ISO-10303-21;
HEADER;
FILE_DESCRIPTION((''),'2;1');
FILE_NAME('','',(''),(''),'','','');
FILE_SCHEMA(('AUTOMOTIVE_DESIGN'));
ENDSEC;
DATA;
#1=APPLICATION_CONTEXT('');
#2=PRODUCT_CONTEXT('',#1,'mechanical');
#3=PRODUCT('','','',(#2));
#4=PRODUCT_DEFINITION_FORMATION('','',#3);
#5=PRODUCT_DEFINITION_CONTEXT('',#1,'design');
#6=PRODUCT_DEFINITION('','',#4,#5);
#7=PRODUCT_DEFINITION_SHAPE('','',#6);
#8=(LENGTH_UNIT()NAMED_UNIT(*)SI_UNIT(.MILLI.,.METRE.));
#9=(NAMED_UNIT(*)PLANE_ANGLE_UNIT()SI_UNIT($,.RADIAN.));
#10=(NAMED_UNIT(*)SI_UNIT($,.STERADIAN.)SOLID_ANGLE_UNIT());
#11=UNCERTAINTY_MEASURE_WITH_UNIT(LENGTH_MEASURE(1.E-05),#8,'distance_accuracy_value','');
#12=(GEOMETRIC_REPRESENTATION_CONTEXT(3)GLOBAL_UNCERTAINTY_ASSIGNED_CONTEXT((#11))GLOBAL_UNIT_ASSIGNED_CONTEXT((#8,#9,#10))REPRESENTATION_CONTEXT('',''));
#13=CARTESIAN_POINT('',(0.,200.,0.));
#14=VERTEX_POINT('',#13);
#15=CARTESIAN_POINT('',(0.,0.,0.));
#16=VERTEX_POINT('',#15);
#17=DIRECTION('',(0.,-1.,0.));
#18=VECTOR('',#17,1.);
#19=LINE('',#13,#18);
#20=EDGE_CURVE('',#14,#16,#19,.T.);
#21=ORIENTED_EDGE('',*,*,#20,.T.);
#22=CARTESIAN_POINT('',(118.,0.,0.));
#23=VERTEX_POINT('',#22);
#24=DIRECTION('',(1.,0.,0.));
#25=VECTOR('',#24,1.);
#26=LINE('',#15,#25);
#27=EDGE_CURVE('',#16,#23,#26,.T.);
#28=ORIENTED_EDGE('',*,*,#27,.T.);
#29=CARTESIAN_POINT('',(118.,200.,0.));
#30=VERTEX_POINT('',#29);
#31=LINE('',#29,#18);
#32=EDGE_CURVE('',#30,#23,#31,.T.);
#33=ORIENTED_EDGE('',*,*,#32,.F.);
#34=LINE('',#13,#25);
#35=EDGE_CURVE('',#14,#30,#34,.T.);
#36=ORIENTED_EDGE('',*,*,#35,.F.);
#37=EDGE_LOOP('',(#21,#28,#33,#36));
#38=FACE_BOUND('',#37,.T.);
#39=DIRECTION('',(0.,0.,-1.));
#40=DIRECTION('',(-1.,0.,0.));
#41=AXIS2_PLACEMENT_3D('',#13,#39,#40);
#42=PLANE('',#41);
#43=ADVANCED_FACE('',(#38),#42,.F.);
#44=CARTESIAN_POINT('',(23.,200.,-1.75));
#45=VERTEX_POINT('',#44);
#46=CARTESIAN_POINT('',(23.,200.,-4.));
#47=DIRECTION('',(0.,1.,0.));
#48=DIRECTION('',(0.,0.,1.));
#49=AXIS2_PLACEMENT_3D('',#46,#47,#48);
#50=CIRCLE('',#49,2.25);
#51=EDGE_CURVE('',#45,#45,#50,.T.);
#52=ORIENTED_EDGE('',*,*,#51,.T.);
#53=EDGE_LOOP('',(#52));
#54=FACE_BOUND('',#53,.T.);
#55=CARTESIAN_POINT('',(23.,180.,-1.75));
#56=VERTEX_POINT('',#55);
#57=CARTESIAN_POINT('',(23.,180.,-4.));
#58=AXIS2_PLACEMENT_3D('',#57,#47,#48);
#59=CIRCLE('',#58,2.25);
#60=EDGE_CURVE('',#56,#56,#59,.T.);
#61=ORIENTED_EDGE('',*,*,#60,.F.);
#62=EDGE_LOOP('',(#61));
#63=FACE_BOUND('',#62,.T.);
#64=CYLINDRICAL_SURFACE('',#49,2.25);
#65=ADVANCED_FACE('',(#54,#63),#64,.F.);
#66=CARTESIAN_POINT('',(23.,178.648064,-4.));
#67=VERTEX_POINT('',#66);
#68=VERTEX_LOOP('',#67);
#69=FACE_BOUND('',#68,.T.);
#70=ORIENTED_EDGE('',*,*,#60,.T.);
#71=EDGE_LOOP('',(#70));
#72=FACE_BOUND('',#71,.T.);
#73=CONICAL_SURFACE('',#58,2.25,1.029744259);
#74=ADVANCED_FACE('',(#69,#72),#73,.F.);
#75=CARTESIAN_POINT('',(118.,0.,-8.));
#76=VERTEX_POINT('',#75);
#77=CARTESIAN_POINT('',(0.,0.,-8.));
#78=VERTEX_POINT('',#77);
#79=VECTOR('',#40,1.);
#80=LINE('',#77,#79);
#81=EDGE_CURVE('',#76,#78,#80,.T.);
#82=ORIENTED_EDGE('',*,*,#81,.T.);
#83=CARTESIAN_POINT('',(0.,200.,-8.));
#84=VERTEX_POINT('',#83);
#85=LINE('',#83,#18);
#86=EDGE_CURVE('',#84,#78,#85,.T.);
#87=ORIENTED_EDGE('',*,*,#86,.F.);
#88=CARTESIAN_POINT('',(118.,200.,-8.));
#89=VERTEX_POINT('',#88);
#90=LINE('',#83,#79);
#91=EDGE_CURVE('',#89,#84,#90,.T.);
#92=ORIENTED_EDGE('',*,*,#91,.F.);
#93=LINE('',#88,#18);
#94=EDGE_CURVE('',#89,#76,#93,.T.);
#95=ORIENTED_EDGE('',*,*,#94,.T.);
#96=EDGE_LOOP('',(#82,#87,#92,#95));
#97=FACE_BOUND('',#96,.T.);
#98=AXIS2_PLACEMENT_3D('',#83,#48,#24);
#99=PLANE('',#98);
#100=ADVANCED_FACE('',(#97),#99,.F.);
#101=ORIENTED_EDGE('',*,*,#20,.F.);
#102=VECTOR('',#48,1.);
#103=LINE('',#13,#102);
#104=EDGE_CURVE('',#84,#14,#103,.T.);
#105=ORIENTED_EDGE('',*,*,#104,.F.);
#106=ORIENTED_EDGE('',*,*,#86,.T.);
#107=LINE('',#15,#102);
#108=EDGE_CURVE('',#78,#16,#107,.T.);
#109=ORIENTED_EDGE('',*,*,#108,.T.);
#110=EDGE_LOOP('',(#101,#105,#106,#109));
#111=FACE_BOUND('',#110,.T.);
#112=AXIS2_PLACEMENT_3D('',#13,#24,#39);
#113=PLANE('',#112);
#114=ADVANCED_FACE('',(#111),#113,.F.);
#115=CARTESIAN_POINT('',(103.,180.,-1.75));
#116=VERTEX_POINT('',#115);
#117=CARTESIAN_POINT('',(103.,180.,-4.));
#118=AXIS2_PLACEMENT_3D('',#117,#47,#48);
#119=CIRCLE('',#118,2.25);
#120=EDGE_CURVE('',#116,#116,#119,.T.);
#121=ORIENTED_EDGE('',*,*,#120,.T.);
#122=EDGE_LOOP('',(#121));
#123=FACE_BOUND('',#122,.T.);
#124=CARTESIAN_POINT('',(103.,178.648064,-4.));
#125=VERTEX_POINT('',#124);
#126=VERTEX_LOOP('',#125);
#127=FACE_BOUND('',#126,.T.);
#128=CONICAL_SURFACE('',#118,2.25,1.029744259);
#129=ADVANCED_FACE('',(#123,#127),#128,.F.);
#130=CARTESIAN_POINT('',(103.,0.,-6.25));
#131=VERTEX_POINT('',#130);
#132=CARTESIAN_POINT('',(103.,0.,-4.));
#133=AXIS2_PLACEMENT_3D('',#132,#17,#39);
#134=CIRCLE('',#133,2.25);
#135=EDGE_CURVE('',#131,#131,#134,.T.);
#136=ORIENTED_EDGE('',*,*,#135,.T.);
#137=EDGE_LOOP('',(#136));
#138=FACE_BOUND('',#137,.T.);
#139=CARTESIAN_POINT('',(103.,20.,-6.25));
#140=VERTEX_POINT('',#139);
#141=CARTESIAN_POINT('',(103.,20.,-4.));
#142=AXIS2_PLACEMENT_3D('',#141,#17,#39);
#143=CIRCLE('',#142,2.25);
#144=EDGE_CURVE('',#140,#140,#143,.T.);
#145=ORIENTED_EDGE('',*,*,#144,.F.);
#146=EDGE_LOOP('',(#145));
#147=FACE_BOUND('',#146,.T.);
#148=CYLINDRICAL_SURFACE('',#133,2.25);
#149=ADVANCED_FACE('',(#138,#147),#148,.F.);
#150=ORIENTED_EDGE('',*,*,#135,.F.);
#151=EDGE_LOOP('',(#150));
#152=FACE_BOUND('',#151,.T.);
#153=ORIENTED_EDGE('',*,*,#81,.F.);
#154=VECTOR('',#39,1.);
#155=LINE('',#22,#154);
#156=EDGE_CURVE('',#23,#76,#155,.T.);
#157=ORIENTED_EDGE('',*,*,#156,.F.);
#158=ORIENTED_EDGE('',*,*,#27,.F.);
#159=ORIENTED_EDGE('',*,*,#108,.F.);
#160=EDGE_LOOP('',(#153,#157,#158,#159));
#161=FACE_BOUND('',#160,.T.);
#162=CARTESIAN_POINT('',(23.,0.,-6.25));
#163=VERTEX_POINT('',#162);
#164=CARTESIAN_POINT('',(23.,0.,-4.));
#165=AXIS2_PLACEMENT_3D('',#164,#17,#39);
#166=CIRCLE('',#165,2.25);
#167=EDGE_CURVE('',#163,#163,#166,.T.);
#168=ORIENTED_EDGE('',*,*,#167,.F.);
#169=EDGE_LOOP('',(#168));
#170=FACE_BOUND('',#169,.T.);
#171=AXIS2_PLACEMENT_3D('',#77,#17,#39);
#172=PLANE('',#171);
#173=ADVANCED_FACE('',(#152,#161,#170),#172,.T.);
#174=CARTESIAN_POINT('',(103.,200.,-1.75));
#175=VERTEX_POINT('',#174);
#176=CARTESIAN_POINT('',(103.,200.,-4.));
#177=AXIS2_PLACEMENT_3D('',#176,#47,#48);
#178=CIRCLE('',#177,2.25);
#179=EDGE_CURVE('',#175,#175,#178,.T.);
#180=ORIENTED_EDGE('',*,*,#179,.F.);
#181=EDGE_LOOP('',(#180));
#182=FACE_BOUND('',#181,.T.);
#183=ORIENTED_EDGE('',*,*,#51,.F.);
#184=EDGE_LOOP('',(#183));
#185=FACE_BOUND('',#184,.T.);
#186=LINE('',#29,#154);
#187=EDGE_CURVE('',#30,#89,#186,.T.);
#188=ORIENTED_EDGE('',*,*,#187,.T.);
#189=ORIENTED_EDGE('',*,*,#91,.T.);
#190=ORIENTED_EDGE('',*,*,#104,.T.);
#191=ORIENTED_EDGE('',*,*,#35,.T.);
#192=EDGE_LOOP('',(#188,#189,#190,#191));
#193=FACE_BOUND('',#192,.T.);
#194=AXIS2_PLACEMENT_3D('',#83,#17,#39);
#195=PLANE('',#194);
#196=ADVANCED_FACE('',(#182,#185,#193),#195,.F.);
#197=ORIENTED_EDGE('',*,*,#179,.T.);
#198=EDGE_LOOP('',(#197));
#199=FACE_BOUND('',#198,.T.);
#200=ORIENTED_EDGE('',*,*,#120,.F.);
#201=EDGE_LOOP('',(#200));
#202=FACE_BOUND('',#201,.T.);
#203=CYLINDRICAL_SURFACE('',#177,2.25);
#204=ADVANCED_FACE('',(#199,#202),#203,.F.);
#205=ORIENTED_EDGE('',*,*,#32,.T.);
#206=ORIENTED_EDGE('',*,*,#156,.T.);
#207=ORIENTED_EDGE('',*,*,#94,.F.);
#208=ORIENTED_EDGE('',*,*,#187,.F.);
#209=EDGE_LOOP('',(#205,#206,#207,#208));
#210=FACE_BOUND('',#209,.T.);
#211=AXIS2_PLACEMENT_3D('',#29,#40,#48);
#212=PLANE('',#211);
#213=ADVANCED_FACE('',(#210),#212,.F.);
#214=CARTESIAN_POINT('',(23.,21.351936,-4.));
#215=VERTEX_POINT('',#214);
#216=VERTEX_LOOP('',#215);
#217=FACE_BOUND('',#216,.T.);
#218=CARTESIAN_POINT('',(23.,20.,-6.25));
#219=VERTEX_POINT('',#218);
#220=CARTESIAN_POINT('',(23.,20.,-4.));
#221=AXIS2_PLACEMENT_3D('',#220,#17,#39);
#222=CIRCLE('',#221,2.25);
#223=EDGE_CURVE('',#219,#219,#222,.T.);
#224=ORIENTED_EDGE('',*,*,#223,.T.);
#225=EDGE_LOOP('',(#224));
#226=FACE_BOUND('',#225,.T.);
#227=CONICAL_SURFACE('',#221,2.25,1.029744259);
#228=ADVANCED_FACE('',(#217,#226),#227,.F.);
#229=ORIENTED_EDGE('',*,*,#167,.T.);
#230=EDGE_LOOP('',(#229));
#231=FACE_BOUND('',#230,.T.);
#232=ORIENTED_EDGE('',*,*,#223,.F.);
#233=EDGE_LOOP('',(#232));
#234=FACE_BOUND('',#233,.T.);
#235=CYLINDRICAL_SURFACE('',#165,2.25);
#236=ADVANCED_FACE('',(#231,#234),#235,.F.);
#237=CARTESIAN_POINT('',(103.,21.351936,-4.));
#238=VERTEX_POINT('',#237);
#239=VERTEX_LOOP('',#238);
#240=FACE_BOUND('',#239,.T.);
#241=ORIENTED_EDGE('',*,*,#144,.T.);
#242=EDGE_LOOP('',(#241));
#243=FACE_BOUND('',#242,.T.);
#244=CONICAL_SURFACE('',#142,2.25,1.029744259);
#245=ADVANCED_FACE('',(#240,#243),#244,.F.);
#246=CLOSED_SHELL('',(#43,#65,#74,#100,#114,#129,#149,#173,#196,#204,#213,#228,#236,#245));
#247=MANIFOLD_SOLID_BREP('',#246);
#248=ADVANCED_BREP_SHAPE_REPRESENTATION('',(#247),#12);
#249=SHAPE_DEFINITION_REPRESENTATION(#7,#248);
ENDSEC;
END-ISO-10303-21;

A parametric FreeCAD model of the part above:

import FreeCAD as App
import Part
import Sketcher
from FreeCAD import Vector
Q = App.Units.Quantity

doc = App.newDocument("Part")
body = doc.addObject("PartDesign::Body", "Body")

# Sketch on XZ plane
sketch1 = body.newObject("Sketcher::SketchObject", "Sketch")
sketch1.AttachmentSupport = (doc.getObject("XZ_Plane"), [""])
sketch1.MapMode = "FlatFace"
sketch1.addGeometry([
    Part.LineSegment(Vector(0, -8, 0), Vector(0, 0, 0)),
    Part.LineSegment(Vector(0, 0, 0), Vector(118, 0, 0)),
    Part.LineSegment(Vector(118, 0, 0), Vector(118, -8, 0)),
    Part.LineSegment(Vector(118, -8, 0), Vector(0, -8, 0)),
], False)
sketch1.addConstraint([
    Sketcher.Constraint("Coincident", 0, 2, 1, 1),
    Sketcher.Constraint("Coincident", 1, 2, 2, 1),
    Sketcher.Constraint("Coincident", 2, 2, 3, 1),
    Sketcher.Constraint("Coincident", 3, 2, 0, 1),
    Sketcher.Constraint("Vertical", 0),
    Sketcher.Constraint("Horizontal", 1),
    Sketcher.Constraint("Vertical", 2),
    Sketcher.Constraint("Horizontal", 3),
    Sketcher.Constraint("Coincident", 0, 2, -1, 1),
    Sketcher.Constraint("DistanceX", 1, 1, 1, 2, Q("118 mm")),
    Sketcher.Constraint("DistanceY", 0, 1, 0, 2, Q("8 mm")),
])
pad1 = body.newObject("PartDesign::Pad", "Pad")
pad1.Profile = sketch1
pad1.Length = 200
pad1.Reversed = True

# Sketch on XZ plane
sketch2 = body.newObject("Sketcher::SketchObject", "Sketch001")
sketch2.AttachmentSupport = (doc.getObject("XZ_Plane"), [""])
sketch2.MapMode = "FlatFace"
sketch2.AttachmentOffset = App.Placement(Vector(0, 0, -200), App.Rotation())
sketch2.addGeometry([
    Part.Circle(Vector(23, -4, 0), Vector(0, 0, 1), 2.2),
    Part.Circle(Vector(103, -4, 0), Vector(0, 0, 1), 2.2),
], False)
sketch2.addConstraint([
    Sketcher.Constraint("Equal", 0, 1),
    Sketcher.Constraint("Horizontal", 0, 3, 1, 3),
    Sketcher.Constraint("Diameter", 0, Q("4.5 mm")),
    Sketcher.Constraint("DistanceX", -1, 1, 0, 3, Q("23 mm")),
    Sketcher.Constraint("DistanceY", 0, 3, -1, 1, Q("4 mm")),
    Sketcher.Constraint("DistanceX", -1, 1, 1, 3, Q("103 mm")),
])
doc.recompute()
hole = body.newObject("PartDesign::Hole", "Hole")
hole.Profile = sketch2
hole.ThreadType = "None"
hole.Diameter = 4.5
hole.DepthType = "Dimension"
hole.Depth = 20
hole.DrillPoint = "Angled"
hole.DrillPointAngle = 118
hole.Reversed = True

# Sketch on XZ plane
sketch3 = body.newObject("Sketcher::SketchObject", "Sketch002")
sketch3.AttachmentSupport = (doc.getObject("XZ_Plane"), [""])
sketch3.MapMode = "FlatFace"
sketch3.addGeometry([
    Part.Circle(Vector(23, -4, 0), Vector(0, 0, 1), 2.2),
    Part.Circle(Vector(103, -4, 0), Vector(0, 0, 1), 2.2),
], False)
sketch3.addConstraint([
    Sketcher.Constraint("Equal", 0, 1),
    Sketcher.Constraint("Horizontal", 0, 3, 1, 3),
    Sketcher.Constraint("Diameter", 0, Q("4.5 mm")),
    Sketcher.Constraint("DistanceX", -1, 1, 0, 3, Q("23 mm")),
    Sketcher.Constraint("DistanceY", 0, 3, -1, 1, Q("4 mm")),
    Sketcher.Constraint("DistanceX", -1, 1, 1, 3, Q("103 mm")),
])
doc.recompute()
hole2 = body.newObject("PartDesign::Hole", "Hole001")
hole2.Profile = sketch3
hole2.ThreadType = "None"
hole2.Diameter = 4.5
hole2.DepthType = "Dimension"
hole2.Depth = 20
hole2.DrillPoint = "Angled"
hole2.DrillPointAngle = 118

doc.recompute()
